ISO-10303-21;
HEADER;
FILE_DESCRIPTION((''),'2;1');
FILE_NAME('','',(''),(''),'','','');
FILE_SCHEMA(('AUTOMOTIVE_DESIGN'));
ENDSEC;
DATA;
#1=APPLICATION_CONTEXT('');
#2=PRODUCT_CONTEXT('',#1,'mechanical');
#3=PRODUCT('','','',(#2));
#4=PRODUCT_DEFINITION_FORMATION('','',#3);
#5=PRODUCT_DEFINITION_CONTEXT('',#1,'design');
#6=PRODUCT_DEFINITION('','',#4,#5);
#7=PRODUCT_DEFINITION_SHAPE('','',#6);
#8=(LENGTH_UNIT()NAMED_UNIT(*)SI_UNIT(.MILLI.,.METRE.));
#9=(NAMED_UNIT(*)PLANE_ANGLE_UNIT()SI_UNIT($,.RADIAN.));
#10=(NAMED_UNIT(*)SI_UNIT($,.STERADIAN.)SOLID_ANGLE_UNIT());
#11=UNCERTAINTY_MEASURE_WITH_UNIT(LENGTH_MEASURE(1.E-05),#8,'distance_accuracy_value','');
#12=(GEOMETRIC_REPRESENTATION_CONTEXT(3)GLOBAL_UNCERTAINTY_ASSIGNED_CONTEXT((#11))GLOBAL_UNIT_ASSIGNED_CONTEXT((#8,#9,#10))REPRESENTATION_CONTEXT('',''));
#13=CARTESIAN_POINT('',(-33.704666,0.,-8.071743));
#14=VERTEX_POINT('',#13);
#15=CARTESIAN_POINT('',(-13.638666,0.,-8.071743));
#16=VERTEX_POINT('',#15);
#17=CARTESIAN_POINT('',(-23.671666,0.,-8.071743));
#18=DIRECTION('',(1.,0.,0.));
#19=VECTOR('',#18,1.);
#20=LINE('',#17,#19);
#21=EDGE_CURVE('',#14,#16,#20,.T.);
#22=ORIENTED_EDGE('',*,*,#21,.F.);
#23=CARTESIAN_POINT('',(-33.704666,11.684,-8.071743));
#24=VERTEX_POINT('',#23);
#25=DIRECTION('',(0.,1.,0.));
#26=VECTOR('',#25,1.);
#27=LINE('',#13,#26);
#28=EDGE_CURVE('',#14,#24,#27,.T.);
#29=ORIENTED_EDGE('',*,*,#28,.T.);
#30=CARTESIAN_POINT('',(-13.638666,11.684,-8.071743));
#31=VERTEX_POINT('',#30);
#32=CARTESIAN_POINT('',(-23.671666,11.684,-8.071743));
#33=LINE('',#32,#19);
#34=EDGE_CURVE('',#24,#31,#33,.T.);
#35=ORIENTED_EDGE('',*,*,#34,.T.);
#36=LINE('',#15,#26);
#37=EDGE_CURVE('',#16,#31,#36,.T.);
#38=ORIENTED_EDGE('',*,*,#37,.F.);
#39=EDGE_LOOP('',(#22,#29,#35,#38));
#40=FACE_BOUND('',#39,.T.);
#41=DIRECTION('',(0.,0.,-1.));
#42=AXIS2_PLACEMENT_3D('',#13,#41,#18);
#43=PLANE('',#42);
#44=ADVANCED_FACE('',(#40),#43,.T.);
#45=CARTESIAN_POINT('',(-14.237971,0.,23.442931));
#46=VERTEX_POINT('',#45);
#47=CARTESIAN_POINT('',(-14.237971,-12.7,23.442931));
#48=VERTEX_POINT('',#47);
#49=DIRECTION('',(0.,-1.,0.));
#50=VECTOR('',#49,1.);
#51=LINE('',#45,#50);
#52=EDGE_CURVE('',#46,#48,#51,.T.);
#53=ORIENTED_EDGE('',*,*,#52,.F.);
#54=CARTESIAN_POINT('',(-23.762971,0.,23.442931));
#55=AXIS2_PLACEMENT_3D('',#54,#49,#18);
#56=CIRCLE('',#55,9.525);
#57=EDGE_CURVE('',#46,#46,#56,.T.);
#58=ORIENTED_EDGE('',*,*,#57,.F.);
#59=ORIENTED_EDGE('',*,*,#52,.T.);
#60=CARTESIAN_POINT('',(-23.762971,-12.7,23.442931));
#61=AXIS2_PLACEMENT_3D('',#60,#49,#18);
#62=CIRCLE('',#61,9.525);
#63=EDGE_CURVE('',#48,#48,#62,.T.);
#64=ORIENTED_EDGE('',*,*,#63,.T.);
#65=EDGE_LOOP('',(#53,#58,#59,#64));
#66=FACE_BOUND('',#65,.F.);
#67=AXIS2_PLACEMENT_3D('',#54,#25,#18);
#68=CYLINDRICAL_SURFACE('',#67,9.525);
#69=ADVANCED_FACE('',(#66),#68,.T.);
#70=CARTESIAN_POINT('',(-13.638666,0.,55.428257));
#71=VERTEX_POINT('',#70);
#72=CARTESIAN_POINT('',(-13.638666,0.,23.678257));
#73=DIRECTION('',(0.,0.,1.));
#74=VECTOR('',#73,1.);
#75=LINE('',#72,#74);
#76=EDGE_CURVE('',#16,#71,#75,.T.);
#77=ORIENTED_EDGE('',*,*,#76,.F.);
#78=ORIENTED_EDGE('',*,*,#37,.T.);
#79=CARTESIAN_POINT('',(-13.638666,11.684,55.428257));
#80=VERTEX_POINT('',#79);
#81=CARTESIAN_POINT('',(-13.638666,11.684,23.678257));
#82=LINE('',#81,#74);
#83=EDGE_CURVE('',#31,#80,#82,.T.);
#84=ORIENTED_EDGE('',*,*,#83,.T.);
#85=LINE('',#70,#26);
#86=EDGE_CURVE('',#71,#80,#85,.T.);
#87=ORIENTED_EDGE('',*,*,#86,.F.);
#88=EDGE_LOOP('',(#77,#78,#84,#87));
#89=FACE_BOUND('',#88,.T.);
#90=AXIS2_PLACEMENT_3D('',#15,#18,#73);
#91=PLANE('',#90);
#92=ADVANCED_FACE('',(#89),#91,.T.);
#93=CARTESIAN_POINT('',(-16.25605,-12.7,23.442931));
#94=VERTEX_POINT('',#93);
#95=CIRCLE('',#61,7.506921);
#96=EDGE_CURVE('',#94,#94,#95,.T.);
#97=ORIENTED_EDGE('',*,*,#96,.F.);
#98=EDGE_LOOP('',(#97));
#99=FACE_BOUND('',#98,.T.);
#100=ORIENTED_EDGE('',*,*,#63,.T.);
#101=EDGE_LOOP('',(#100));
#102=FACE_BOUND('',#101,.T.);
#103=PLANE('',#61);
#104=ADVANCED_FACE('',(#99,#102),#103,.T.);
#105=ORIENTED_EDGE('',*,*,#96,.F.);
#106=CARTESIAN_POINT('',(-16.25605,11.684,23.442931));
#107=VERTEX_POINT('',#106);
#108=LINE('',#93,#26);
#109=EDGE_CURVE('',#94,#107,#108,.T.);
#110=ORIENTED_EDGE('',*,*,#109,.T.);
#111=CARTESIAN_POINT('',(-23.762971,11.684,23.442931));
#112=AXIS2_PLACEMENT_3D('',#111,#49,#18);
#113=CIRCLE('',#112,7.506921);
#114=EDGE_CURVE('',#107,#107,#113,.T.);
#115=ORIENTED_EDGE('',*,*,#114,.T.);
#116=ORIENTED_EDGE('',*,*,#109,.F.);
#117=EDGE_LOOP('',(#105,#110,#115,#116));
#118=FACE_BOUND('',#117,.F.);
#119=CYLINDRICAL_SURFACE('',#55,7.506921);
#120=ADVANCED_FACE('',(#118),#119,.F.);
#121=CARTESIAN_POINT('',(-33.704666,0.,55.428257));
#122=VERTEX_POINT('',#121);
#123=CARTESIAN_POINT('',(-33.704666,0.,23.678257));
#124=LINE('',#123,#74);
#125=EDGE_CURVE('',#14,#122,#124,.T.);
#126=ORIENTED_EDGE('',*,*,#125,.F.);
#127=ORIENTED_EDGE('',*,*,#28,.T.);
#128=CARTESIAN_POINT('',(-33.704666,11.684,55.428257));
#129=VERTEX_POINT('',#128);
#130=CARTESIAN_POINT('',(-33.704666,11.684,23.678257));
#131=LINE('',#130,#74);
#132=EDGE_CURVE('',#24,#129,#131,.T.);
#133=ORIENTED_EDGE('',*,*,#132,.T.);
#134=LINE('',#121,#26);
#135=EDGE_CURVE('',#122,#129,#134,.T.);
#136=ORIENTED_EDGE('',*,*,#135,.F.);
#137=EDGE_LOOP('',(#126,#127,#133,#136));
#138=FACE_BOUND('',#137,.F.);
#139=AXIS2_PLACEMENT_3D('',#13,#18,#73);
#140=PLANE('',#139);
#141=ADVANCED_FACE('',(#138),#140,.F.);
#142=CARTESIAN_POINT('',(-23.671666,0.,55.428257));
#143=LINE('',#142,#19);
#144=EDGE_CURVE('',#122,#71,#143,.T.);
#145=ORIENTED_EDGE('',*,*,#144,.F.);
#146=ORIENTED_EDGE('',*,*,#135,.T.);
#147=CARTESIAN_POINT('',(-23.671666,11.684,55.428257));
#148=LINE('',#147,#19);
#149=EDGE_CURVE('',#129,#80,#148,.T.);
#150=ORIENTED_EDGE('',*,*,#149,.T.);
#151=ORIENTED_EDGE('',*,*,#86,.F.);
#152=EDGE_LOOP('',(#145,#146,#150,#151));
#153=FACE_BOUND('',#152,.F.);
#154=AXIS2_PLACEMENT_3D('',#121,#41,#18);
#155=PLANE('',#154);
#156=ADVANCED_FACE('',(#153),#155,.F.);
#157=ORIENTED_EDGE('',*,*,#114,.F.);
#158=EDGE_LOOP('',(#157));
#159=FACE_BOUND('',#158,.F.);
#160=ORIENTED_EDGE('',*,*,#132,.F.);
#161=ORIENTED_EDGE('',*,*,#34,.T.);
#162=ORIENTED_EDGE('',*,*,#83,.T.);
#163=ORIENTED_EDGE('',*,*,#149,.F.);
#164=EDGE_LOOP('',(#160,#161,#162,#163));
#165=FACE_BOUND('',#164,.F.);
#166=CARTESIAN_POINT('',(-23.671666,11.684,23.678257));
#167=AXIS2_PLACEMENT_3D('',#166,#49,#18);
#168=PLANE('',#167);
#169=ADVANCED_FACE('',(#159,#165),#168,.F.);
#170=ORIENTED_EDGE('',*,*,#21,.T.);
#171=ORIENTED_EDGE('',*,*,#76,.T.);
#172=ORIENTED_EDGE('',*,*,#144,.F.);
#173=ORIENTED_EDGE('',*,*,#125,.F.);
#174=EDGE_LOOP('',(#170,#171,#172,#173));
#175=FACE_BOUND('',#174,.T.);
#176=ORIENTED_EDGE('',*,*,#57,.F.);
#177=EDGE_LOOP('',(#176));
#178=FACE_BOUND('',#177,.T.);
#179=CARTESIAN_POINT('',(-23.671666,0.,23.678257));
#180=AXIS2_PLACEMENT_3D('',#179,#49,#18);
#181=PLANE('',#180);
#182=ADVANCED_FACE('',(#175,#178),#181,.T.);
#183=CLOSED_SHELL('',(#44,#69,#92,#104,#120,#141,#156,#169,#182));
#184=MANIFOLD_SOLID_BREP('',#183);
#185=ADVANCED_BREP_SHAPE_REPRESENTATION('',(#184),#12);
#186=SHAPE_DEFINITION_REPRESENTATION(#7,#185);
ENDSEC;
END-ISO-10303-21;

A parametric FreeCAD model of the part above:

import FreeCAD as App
import Part
import Sketcher

V = App.Vector
Q = App.Units.Quantity

doc = App.newDocument("Part")
body = doc.addObject("PartDesign::Body", "Body")

sketch1 = body.newObject("Sketcher::SketchObject", "Sketch")
sketch1.AttachmentSupport = (doc.getObject("XZ_Plane"), [""])
sketch1.MapMode = "FlatFace"
sketch1.addGeometry(Part.Circle(V(-24, 23, 0), V(0, 0, 1), 10), False)
sketch1.addConstraint([
    Sketcher.Constraint("Diameter", 0, Q("0.75 in")),
    Sketcher.Constraint("DistanceX", 0, 3, -1, 1, 23.762971),
    Sketcher.Constraint("DistanceY", -1, 1, 0, 3, 23.442931),
])
pad1 = body.newObject("PartDesign::Pad", "Pad")
pad1.Profile = sketch1
pad1.Length = Q("0.5 in")

sketch2 = body.newObject("Sketcher::SketchObject", "Sketch001")
sketch2.AttachmentSupport = (doc.getObject("XZ_Plane"), [""])
sketch2.MapMode = "FlatFace"
sketch2.AttachmentOffset = App.Placement(V(0, 0, 0.5 * 25.4), App.Rotation())
sketch2.addGeometry(Part.Circle(V(-24, 23, 0), V(0, 0, 1), 8), False)
sketch2.addConstraint([
    Sketcher.Constraint("Diameter", 0, 15.013842),
    Sketcher.Constraint("DistanceX", 0, 3, -1, 1, 23.762971),
    Sketcher.Constraint("DistanceY", -1, 1, 0, 3, 23.442931),
])
pocket1 = body.newObject("PartDesign::Pocket", "Pocket")
pocket1.Profile = sketch2
pocket1.Length = Q("1 in")

sketch3 = body.newObject("Sketcher::SketchObject", "Sketch002")
sketch3.AttachmentSupport = (doc.getObject("XZ_Plane"), [""])
sketch3.MapMode = "FlatFace"
sketch3.addGeometry([
    Part.LineSegment(V(-34, 55, 0), V(-34, -8, 0)),
    Part.LineSegment(V(-34, -8, 0), V(-14, -8, 0)),
    Part.LineSegment(V(-14, -8, 0), V(-14, 55, 0)),
    Part.LineSegment(V(-14, 55, 0), V(-34, 55, 0)),
], False)
sketch3.addConstraint([
    Sketcher.Constraint("Coincident", 0, 2, 1, 1),
    Sketcher.Constraint("Coincident", 1, 2, 2, 1),
    Sketcher.Constraint("Coincident", 2, 2, 3, 1),
    Sketcher.Constraint("Coincident", 3, 2, 0, 1),
    Sketcher.Constraint("Vertical", 0),
    Sketcher.Constraint("Horizontal", 1),
    Sketcher.Constraint("Vertical", 2),
    Sketcher.Constraint("Horizontal", 3),
    Sketcher.Constraint("DistanceY", 0, 2, 0, 1, Q("2.5 in")),
    Sketcher.Constraint("DistanceX", 1, 1, 1, 2, Q("0.79 in")),
    Sketcher.Constraint("DistanceX", 0, 2, -1, 1, 33.704666),
    Sketcher.Constraint("DistanceY", 0, 2, -1, 1, 8.071743),
])
pad2 = body.newObject("PartDesign::Pad", "Pad001")
pad2.Profile = sketch3
pad2.Length = Q("0.46 in")
pad2.Reversed = True

sketch4 = body.newObject("Sketcher::SketchObject", "Sketch003")
sketch4.AttachmentSupport = (doc.getObject("XZ_Plane"), [""])
sketch4.MapMode = "FlatFace"
sketch4.addGeometry(Part.Circle(V(-24, 23, 0), V(0, 0, 1), 8), False)
sketch4.addConstraint([
    Sketcher.Constraint("Diameter", 0, 15.013842),
    Sketcher.Constraint("DistanceX", 0, 3, -1, 1, 23.762971),
    Sketcher.Constraint("DistanceY", -1, 1, 0, 3, 23.442931),
])
pocket2 = body.newObject("PartDesign::Pocket", "Pocket001")
pocket2.Profile = sketch4
pocket2.Length = Q("1 in")

doc.recompute()
